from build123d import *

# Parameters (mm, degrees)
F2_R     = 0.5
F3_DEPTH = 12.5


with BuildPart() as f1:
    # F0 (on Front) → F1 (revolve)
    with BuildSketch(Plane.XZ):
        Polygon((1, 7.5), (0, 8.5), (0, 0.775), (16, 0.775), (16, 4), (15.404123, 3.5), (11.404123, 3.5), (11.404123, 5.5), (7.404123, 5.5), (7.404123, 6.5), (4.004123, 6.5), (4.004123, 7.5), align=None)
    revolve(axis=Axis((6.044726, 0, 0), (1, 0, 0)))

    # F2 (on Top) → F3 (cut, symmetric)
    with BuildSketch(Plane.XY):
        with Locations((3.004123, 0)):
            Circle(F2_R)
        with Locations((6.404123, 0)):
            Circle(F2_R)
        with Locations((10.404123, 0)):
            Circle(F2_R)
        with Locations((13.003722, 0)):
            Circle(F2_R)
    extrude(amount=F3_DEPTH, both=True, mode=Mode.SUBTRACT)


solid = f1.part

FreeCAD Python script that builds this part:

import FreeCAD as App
import Part
import Sketcher
from FreeCAD import Vector
Q = App.Units.Quantity

doc = App.newDocument("Part")
body = doc.addObject("PartDesign::Body", "Body")

sketch1 = body.newObject("Sketcher::SketchObject", "Sketch")
sketch1.AttachmentSupport = (doc.getObject("XZ_Plane"), [""])
sketch1.MapMode = "FlatFace"
sketch1.addGeometry(Part.LineSegment(Vector(1, 7.5, 0), Vector(0, 8.5, 0)), False)
sketch1.addGeometry(Part.LineSegment(Vector(0, 8.5, 0), Vector(0, 0.8, 0)), False)
sketch1.addGeometry(Part.LineSegment(Vector(0, 0.8, 0), Vector(16, 0.8, 0)), False)
sketch1.addGeometry(Part.LineSegment(Vector(16, 0.8, 0), Vector(16, 4, 0)), False)
sketch1.addGeometry(Part.LineSegment(Vector(16, 4, 0), Vector(15.4, 3.5, 0)), False)
sketch1.addGeometry(Part.LineSegment(Vector(15.4, 3.5, 0), Vector(11.4, 3.5, 0)), False)
sketch1.addGeometry(Part.LineSegment(Vector(11.4, 3.5, 0), Vector(11.4, 5.5, 0)), False)
sketch1.addGeometry(Part.LineSegment(Vector(11.4, 5.5, 0), Vector(7.4, 5.5, 0)), False)
sketch1.addGeometry(Part.LineSegment(Vector(7.4, 5.5, 0), Vector(7.4, 6.5, 0)), False)
sketch1.addGeometry(Part.LineSegment(Vector(7.4, 6.5, 0), Vector(4, 6.5, 0)), False)
sketch1.addGeometry(Part.LineSegment(Vector(4, 6.5, 0), Vector(4, 7.5, 0)), False)
sketch1.addGeometry(Part.LineSegment(Vector(4, 7.5, 0), Vector(1, 7.5, 0)), False)
sketch1.addConstraint(Sketcher.Constraint("Coincident", 0, 2, 1, 1))
sketch1.addConstraint(Sketcher.Constraint("Coincident", 1, 2, 2, 1))
sketch1.addConstraint(Sketcher.Constraint("Coincident", 2, 2, 3, 1))
sketch1.addConstraint(Sketcher.Constraint("Coincident", 3, 2, 4, 1))
sketch1.addConstraint(Sketcher.Constraint("Coincident", 4, 2, 5, 1))
sketch1.addConstraint(Sketcher.Constraint("Coincident", 5, 2, 6, 1))
sketch1.addConstraint(Sketcher.Constraint("Coincident", 6, 2, 7, 1))
sketch1.addConstraint(Sketcher.Constraint("Coincident", 7, 2, 8, 1))
sketch1.addConstraint(Sketcher.Constraint("Coincident", 8, 2, 9, 1))
sketch1.addConstraint(Sketcher.Constraint("Coincident", 9, 2, 10, 1))
sketch1.addConstraint(Sketcher.Constraint("Coincident", 10, 2, 11, 1))
sketch1.addConstraint(Sketcher.Constraint("Coincident", 11, 2, 0, 1))
sketch1.addConstraint(Sketcher.Constraint("Vertical", 1))
sketch1.addConstraint(Sketcher.Constraint("Horizontal", 2))
sketch1.addConstraint(Sketcher.Constraint("Vertical", 3))
sketch1.addConstraint(Sketcher.Constraint("Horizontal", 5))
sketch1.addConstraint(Sketcher.Constraint("Vertical", 6))
sketch1.addConstraint(Sketcher.Constraint("Horizontal", 7))
sketch1.addConstraint(Sketcher.Constraint("Vertical", 8))
sketch1.addConstraint(Sketcher.Constraint("Horizontal", 9))
sketch1.addConstraint(Sketcher.Constraint("Vertical", 10))
sketch1.addConstraint(Sketcher.Constraint("Horizontal", 11))
sketch1.addConstraint(Sketcher.Constraint("PointOnObject", 0, 2, -2))
sketch1.addConstraint(Sketcher.Constraint("Equal", 5, 7))
sketch1.addConstraint(Sketcher.Constraint("Equal", 8, 10))
sketch1.addConstraint(Sketcher.Constraint("DistanceX", 2, 1, 2, 2, Q("16 mm")))
sketch1.addConstraint(Sketcher.Constraint("DistanceX", 5, 2, 5, 1, Q("4 mm")))
sketch1.addConstraint(Sketcher.Constraint("DistanceY", 6, 1, 6, 2, Q("2 mm")))
sketch1.addConstraint(Sketcher.Constraint("DistanceY", 8, 1, 8, 2, Q("1 mm")))
sketch1.addConstraint(Sketcher.Constraint("Angle", 0, Q("135 deg")))
sketch1.addConstraint(Sketcher.Constraint("Angle", 4, Q("-140.00001 deg")))
sketch1.addConstraint(Sketcher.Constraint("DistanceX", 9, 2, 9, 1, Q("3.4 mm")))
sketch1.addConstraint(Sketcher.Constraint("DistanceY", -1, 1, 3, 2, Q("4 mm")))
sketch1.addConstraint(Sketcher.Constraint("DistanceX", -1, 1, 11, 2, Q("1 mm")))
sketch1.addConstraint(Sketcher.Constraint("DistanceY", -1, 1, 0, 2, Q("8.5 mm")))
sketch1.addConstraint(Sketcher.Constraint("DistanceY", 1, 2, 1, 1, Q("7.725 mm")))
revolution = body.newObject("PartDesign::Revolution", "Revolution")
revolution.Profile = sketch1
revolution.ReferenceAxis = (sketch1, ["H_Axis"])
revolution.Angle = 360

sketch2 = body.newObject("Sketcher::SketchObject", "Sketch001")
sketch2.AttachmentSupport = (doc.getObject("XY_Plane"), [""])
sketch2.MapMode = "FlatFace"
sketch2.addGeometry(Part.Circle(Vector(3, 0, 0), Vector(0, 0, 1), 0.5), False)
sketch2.addGeometry(Part.Circle(Vector(6.4, 0, 0), Vector(0, 0, 1), 0.5), False)
sketch2.addGeometry(Part.Circle(Vector(10.4, 0, 0), Vector(0, 0, 1), 0.5), False)
sketch2.addGeometry(Part.Circle(Vector(13, 0, 0), Vector(0, 0, 1), 0.5), False)
sketch2.addConstraint(Sketcher.Constraint("Equal", 0, 1))
sketch2.addConstraint(Sketcher.Constraint("Equal", 1, 2))
sketch2.addConstraint(Sketcher.Constraint("Equal", 2, 3))
sketch2.addConstraint(Sketcher.Constraint("PointOnObject", 0, 3, -1))
sketch2.addConstraint(Sketcher.Constraint("PointOnObject", 1, 3, -1))
sketch2.addConstraint(Sketcher.Constraint("PointOnObject", 2, 3, -1))
sketch2.addConstraint(Sketcher.Constraint("PointOnObject", 3, 3, -1))
sketch2.addConstraint(Sketcher.Constraint("Diameter", 0, Q("1 mm")))
sketch2.addConstraint(Sketcher.Constraint("DistanceX", 1, 3, 2, 3, Q("4 mm")))
sketch2.addConstraint(Sketcher.Constraint("DistanceX", 0, 3, 1, 3, Q("3.4 mm")))
sketch2.addConstraint(Sketcher.Constraint("DistanceX", 2, 3, 3, 3, Q("2.599599 mm")))
sketch2.addConstraint(Sketcher.Constraint("DistanceX", -1, 1, 0, 3, Q("3.004123 mm")))
pocket1 = body.newObject("PartDesign::Pocket", "Pocket")
pocket1.Profile = sketch2
pocket1.Length = 25
pocket1.Midplane = True

doc.recompute()
